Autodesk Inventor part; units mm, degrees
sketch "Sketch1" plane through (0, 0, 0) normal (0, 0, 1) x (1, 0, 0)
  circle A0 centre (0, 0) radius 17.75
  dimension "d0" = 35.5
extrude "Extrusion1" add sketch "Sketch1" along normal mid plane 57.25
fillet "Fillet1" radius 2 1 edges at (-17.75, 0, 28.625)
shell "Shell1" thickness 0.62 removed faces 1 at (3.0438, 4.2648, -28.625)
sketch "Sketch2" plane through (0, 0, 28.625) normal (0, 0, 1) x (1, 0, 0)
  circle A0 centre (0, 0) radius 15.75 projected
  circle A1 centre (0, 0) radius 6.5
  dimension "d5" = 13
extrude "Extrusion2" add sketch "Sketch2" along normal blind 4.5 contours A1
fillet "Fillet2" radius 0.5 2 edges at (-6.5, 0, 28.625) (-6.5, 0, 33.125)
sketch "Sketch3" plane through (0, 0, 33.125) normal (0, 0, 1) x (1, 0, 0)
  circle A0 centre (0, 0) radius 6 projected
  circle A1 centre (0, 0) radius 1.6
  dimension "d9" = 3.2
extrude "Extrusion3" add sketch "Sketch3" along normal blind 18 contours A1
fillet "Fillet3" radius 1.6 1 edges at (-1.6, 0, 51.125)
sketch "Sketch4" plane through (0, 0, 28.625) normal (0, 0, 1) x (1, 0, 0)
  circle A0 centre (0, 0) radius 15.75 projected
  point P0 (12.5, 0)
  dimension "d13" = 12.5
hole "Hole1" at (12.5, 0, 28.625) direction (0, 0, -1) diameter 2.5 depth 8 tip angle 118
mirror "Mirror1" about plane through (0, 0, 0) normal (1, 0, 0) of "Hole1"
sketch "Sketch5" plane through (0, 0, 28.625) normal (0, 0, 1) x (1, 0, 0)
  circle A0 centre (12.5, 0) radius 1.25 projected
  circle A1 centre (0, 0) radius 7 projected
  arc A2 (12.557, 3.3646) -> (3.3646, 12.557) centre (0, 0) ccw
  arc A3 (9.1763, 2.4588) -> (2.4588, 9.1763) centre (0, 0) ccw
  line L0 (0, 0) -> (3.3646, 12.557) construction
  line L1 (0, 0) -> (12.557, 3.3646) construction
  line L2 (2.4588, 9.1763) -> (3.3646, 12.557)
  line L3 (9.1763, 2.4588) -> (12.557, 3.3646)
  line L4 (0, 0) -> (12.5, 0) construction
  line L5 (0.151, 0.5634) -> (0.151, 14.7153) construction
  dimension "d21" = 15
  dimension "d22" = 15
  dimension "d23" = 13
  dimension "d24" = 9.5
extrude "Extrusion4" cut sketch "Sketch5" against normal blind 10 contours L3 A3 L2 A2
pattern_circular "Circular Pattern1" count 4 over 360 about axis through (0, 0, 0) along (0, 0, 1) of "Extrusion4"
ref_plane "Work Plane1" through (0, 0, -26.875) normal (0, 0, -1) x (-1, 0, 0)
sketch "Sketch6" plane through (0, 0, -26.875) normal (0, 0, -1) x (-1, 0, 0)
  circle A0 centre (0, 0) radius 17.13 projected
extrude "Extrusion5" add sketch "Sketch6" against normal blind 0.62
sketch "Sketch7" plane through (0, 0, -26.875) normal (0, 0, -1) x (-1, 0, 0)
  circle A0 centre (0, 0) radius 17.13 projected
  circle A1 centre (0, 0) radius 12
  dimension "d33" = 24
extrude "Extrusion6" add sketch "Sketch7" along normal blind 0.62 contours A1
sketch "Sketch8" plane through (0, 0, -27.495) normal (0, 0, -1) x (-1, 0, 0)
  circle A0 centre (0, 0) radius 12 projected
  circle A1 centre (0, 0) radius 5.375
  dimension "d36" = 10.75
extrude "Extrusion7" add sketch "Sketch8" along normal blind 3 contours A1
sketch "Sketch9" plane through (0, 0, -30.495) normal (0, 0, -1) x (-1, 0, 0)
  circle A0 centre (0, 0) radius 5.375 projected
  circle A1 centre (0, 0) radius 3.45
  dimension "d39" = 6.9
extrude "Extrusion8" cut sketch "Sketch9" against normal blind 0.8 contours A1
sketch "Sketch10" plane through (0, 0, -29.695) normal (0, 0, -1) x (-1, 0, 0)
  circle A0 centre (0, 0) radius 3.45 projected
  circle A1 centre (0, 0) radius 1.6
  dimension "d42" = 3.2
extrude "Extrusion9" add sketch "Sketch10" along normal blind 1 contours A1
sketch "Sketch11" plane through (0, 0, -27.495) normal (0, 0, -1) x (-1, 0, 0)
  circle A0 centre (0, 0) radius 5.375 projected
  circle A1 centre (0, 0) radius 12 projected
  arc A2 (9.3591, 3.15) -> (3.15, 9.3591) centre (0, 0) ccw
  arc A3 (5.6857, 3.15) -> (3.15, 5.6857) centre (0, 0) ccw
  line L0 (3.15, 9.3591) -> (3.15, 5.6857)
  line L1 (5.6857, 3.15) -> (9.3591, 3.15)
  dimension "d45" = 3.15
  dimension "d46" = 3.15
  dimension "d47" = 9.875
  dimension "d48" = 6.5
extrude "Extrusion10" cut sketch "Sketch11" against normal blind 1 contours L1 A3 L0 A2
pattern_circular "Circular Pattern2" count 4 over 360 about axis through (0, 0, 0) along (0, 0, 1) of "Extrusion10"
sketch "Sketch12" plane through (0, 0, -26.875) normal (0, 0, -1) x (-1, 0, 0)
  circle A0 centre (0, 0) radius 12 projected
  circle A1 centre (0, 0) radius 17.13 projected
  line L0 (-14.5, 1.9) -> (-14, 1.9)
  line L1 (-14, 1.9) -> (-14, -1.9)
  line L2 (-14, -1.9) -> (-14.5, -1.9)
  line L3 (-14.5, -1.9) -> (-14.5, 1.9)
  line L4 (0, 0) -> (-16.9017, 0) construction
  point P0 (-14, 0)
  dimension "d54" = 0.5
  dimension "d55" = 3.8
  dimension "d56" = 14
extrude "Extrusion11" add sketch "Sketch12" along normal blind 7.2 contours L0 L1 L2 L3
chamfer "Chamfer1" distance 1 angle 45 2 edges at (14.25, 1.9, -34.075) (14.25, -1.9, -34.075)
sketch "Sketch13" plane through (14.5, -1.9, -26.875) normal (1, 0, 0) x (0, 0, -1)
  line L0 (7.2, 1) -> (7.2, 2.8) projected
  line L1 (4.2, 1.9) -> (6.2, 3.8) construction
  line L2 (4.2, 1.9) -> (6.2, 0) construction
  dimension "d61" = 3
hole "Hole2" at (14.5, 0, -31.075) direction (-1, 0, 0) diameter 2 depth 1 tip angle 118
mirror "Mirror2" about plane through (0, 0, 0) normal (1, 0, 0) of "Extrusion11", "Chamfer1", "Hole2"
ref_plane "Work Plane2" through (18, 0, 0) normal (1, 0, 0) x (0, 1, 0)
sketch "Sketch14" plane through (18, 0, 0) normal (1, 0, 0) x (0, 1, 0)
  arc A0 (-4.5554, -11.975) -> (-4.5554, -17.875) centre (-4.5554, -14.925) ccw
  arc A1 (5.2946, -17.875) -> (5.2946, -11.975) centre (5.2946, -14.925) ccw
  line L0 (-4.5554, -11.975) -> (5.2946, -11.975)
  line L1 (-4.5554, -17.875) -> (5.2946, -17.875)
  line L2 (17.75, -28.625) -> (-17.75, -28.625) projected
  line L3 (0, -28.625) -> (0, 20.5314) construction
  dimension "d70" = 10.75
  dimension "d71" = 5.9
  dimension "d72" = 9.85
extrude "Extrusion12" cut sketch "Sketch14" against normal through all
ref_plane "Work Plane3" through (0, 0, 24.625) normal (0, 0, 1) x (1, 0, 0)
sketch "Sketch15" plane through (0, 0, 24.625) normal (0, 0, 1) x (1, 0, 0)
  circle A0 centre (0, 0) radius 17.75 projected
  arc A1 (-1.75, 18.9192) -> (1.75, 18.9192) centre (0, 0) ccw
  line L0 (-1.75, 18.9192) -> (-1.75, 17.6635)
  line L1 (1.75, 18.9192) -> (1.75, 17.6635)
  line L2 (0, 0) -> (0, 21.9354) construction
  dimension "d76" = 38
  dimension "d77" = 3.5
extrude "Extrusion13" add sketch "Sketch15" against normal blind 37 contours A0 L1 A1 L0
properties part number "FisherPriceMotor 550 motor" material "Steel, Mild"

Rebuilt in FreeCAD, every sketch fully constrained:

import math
import FreeCAD as App
import Part
import Sketcher
Q = App.Units.Quantity


def edges_at(feature, points):
    """Names of the edges that pass closest to the given points."""
    edges = feature.Shape.Edges
    near = lambda p: min(range(len(edges)), key=lambda i: edges[i].distToShape(Part.Vertex(*p))[0])
    return sorted({f"Edge{near(p) + 1}" for p in points})


def faces_at(feature, points):
    """Names of the faces that lie closest to the given points."""
    faces = feature.Shape.Faces
    near = lambda p: min(range(len(faces)), key=lambda i: faces[i].distToShape(Part.Vertex(*p))[0])
    return sorted({f"Face{near(p) + 1}" for p in points})


def add_polygon(sketch, points):
    """Adds a closed chain of lines whose ends are joined by coincident constraints."""
    first, n = sketch.GeometryCount, len(points)
    for a, b in zip(points, points[1:] + points[:1]):
        sketch.addGeometry(Part.LineSegment(App.Vector(*a, 0), App.Vector(*b, 0)), False)
    for i in range(n):
        sketch.addConstraint(Sketcher.Constraint("Coincident", first + i, 2, first + (i + 1) % n, 1))

doc = App.newDocument("Part")
body = doc.addObject("PartDesign::Body", "Body")

# Sketch on XY plane
sketch1 = body.newObject("Sketcher::SketchObject", "Sketch")
sketch1.AttachmentSupport = (doc.getObject("XY_Plane"), [""])
sketch1.MapMode = "FlatFace"
sketch1.addGeometry(Part.Circle(App.Vector(0, 0, 0), App.Vector(0, 0, 1), 18), False)
sketch1.addConstraint(Sketcher.Constraint("Coincident", 0, 3, -1, 1))
sketch1.addConstraint(Sketcher.Constraint("Diameter", 0, 35.5))
pad1 = body.newObject("PartDesign::Pad", "Pad")
pad1.Profile = sketch1
pad1.Length = 57.25
pad1.Midplane = True
doc.recompute()

fillet = body.newObject("PartDesign::Fillet", "Fillet")
fillet.Base = (pad1, edges_at(pad1, [(-17.75, 0, 28.625)]))
fillet.Radius = 2
doc.recompute()

thickness = body.newObject("PartDesign::Thickness", "Thickness")
thickness.Base = (fillet, faces_at(fillet, [(3.044, 4.265, -28.625)]))
thickness.Value = 0.62
thickness.Reversed = True
thickness.Join = "Intersection"

# Sketch on XY plane
sketch2 = body.newObject("Sketcher::SketchObject", "Sketch001")
sketch2.AttachmentSupport = (doc.getObject("XY_Plane"), [""])
sketch2.MapMode = "FlatFace"
sketch2.AttachmentOffset = App.Placement(App.Vector(0, 0, 28.625), App.Rotation())
sketch2.addGeometry(Part.Circle(App.Vector(0, 0, 0), App.Vector(0, 0, 1), 6), False)
sketch2.addConstraint(Sketcher.Constraint("Coincident", 0, 3, -1, 1))
sketch2.addConstraint(Sketcher.Constraint("Diameter", 0, 13.0))
pad2 = body.newObject("PartDesign::Pad", "Pad001")
pad2.Profile = sketch2
pad2.Length = 4.5
doc.recompute()

fillet2 = body.newObject("PartDesign::Fillet", "Fillet001")
fillet2.Base = (pad2, edges_at(pad2, [(-6.5, 0, 28.625), (-6.5, 0, 33.125)]))
fillet2.Radius = 0.5

# Sketch on XY plane
sketch3 = body.newObject("Sketcher::SketchObject", "Sketch002")
sketch3.AttachmentSupport = (doc.getObject("XY_Plane"), [""])
sketch3.MapMode = "FlatFace"
sketch3.AttachmentOffset = App.Placement(App.Vector(0, 0, 33.125), App.Rotation())
sketch3.addGeometry(Part.Circle(App.Vector(0, 0, 0), App.Vector(0, 0, 1), 1.6), False)
sketch3.addConstraint(Sketcher.Constraint("Coincident", 0, 3, -1, 1))
sketch3.addConstraint(Sketcher.Constraint("Diameter", 0, 3.2))
pad3 = body.newObject("PartDesign::Pad", "Pad002")
pad3.Profile = sketch3
pad3.Length = 18
doc.recompute()

fillet3 = body.newObject("PartDesign::Fillet", "Fillet002")
fillet3.Base = (pad3, edges_at(pad3, [(-1.6, 0, 51.125)]))
fillet3.Radius = 1.6

# Sketch on XY plane
sketch4 = body.newObject("Sketcher::SketchObject", "Sketch003")
sketch4.AttachmentSupport = (doc.getObject("XY_Plane"), [""])
sketch4.MapMode = "FlatFace"
sketch4.AttachmentOffset = App.Placement(App.Vector(0, 0, 28.625), App.Rotation())
sketch4.addGeometry(Part.Circle(App.Vector(12.5, 0, 0), App.Vector(0, 0, 1), 1.2), False)
sketch4.addConstraint(Sketcher.Constraint("PointOnObject", 0, 3, -1))
sketch4.addConstraint(Sketcher.Constraint("Diameter", 0, 2.5))
sketch4.addConstraint(Sketcher.Constraint("DistanceX", -1, 1, 0, 3, 12.5))
doc.recompute()
hole = body.newObject("PartDesign::Hole", "Hole")
hole.Profile = sketch4
hole.ThreadType = "None"
hole.Diameter = 2.5
hole.DepthType = "Dimension"
hole.Depth = 8
hole.DrillPoint = "Angled"
hole.DrillPointAngle = 118
doc.recompute()

mirrored = body.newObject("PartDesign::Mirrored", "Mirrored")
mirrored.Originals = [hole]
mirrored.MirrorPlane = (doc.getObject("YZ_Plane"), [""])
body.Tip = mirrored

# Sketch on XY plane
sketch5 = body.newObject("Sketcher::SketchObject", "Sketch004")
sketch5.AttachmentSupport = (doc.getObject("XY_Plane"), [""])
sketch5.MapMode = "FlatFace"
sketch5.AttachmentOffset = App.Placement(App.Vector(0, 0, 28.625), App.Rotation())
sketch5.addGeometry(Part.LineSegment(App.Vector(9.2, 2.5, 0), App.Vector(12.6, 3.4, 0)), False)
sketch5.addGeometry(Part.ArcOfCircle(Part.Circle(App.Vector(0, 0, 0), App.Vector(0, 0, 1), 13), math.radians(15), math.radians(75)), False)
sketch5.addGeometry(Part.LineSegment(App.Vector(3.4, 12.6, 0), App.Vector(2.5, 9.2, 0)), False)
sketch5.addGeometry(Part.ArcOfCircle(Part.Circle(App.Vector(0, 0, 0), App.Vector(0, 0, 1), 9.5), math.radians(15), math.radians(75)), False)
sketch5.addConstraint(Sketcher.Constraint("Coincident", 0, 2, 1, 1))
sketch5.addConstraint(Sketcher.Constraint("Coincident", 1, 2, 2, 1))
sketch5.addConstraint(Sketcher.Constraint("Coincident", 2, 2, 3, 2))
sketch5.addConstraint(Sketcher.Constraint("Coincident", 3, 1, 0, 1))
sketch5.addConstraint(Sketcher.Constraint("Coincident", 1, 3, -1, 1))
sketch5.addConstraint(Sketcher.Constraint("Coincident", 3, 3, -1, 1))
sketch5.addConstraint(Sketcher.Constraint("Radius", 1, 13.0))
sketch5.addConstraint(Sketcher.Constraint("Radius", 3, 9.5))
sketch5.addConstraint(Sketcher.Constraint("Angle", 0, Q("14.999 deg")))
sketch5.addConstraint(Sketcher.Constraint("Angle", 2, Q("-104.999 deg")))
sketch5.addConstraint(Sketcher.Constraint("DistanceX", -1, 1, 0, 2, 12.557))
sketch5.addConstraint(Sketcher.Constraint("DistanceY", -1, 1, 1, 2, 12.557))
pocket1 = body.newObject("PartDesign::Pocket", "Pocket")
pocket1.Profile = sketch5
pocket1.Length = 10
doc.recompute()

polarpattern = body.newObject("PartDesign::PolarPattern", "PolarPattern")
polarpattern.Originals = [pocket1]
polarpattern.Axis = (doc.getObject("Z_Axis"), [""])
polarpattern.Angle = 360
polarpattern.Occurrences = 4
body.Tip = polarpattern

# Sketch on XY plane
sketch6 = body.newObject("Sketcher::SketchObject", "Sketch005")
sketch6.AttachmentSupport = (doc.getObject("XY_Plane"), [""])
sketch6.MapMode = "FlatFace"
sketch6.AttachmentOffset = App.Placement(App.Vector(0, 0, -26.875), App.Rotation())
sketch6.addGeometry(Part.Circle(App.Vector(0, 0, 0), App.Vector(0, 0, 1), 17), False)
sketch6.addConstraint(Sketcher.Constraint("Coincident", 0, 3, -1, 1))
sketch6.addConstraint(Sketcher.Constraint("Diameter", 0, 34.26))
pad4 = body.newObject("PartDesign::Pad", "Pad003")
pad4.Profile = sketch6
pad4.Length = 0.62

# Sketch on XY plane
sketch7 = body.newObject("Sketcher::SketchObject", "Sketch006")
sketch7.AttachmentSupport = (doc.getObject("XY_Plane"), [""])
sketch7.MapMode = "FlatFace"
sketch7.AttachmentOffset = App.Placement(App.Vector(0, 0, -26.875), App.Rotation())
sketch7.addGeometry(Part.Circle(App.Vector(0, 0, 0), App.Vector(0, 0, 1), 12), False)
sketch7.addConstraint(Sketcher.Constraint("Coincident", 0, 3, -1, 1))
sketch7.addConstraint(Sketcher.Constraint("Diameter", 0, 24.0))
pad5 = body.newObject("PartDesign::Pad", "Pad004")
pad5.Profile = sketch7
pad5.Length = 0.62
pad5.Reversed = True

# Sketch on XY plane
sketch8 = body.newObject("Sketcher::SketchObject", "Sketch007")
sketch8.AttachmentSupport = (doc.getObject("XY_Plane"), [""])
sketch8.MapMode = "FlatFace"
sketch8.AttachmentOffset = App.Placement(App.Vector(0, 0, -27.495), App.Rotation())
sketch8.addGeometry(Part.Circle(App.Vector(0, 0, 0), App.Vector(0, 0, 1), 5), False)
sketch8.addConstraint(Sketcher.Constraint("Coincident", 0, 3, -1, 1))
sketch8.addConstraint(Sketcher.Constraint("Diameter", 0, 10.75))
pad6 = body.newObject("PartDesign::Pad", "Pad005")
pad6.Profile = sketch8
pad6.Length = 3
pad6.Reversed = True

# Sketch on XY plane
sketch9 = body.newObject("Sketcher::SketchObject", "Sketch008")
sketch9.AttachmentSupport = (doc.getObject("XY_Plane"), [""])
sketch9.MapMode = "FlatFace"
sketch9.AttachmentOffset = App.Placement(App.Vector(0, 0, -30.495), App.Rotation())
sketch9.addGeometry(Part.Circle(App.Vector(0, 0, 0), App.Vector(0, 0, 1), 3.5), False)
sketch9.addConstraint(Sketcher.Constraint("Coincident", 0, 3, -1, 1))
sketch9.addConstraint(Sketcher.Constraint("Diameter", 0, 6.9))
pocket2 = body.newObject("PartDesign::Pocket", "Pocket001")
pocket2.Profile = sketch9
pocket2.Length = 0.8
pocket2.Reversed = True

# Sketch on XY plane
sketch10 = body.newObject("Sketcher::SketchObject", "Sketch009")
sketch10.AttachmentSupport = (doc.getObject("XY_Plane"), [""])
sketch10.MapMode = "FlatFace"
sketch10.AttachmentOffset = App.Placement(App.Vector(0, 0, -29.695), App.Rotation())
sketch10.addGeometry(Part.Circle(App.Vector(0, 0, 0), App.Vector(0, 0, 1), 1.6), False)
sketch10.addConstraint(Sketcher.Constraint("Coincident", 0, 3, -1, 1))
sketch10.addConstraint(Sketcher.Constraint("Diameter", 0, 3.2))
pad7 = body.newObject("PartDesign::Pad", "Pad006")
pad7.Profile = sketch10
pad7.Length = 1
pad7.Reversed = True

# Sketch on XY plane
sketch11 = body.newObject("Sketcher::SketchObject", "Sketch010")
sketch11.AttachmentSupport = (doc.getObject("XY_Plane"), [""])
sketch11.MapMode = "FlatFace"
sketch11.AttachmentOffset = App.Placement(App.Vector(0, 0, -27.495), App.Rotation())
sketch11.addGeometry(Part.LineSegment(App.Vector(-5.7, 3.1, 0), App.Vector(-9.4, 3.1, 0)), False)
sketch11.addGeometry(Part.ArcOfCircle(Part.Circle(App.Vector(0, 0, 0), App.Vector(0, 0, 1), 9.9), math.radians(109), math.radians(161)), False)
sketch11.addGeometry(Part.LineSegment(App.Vector(-3.1, 9.4, 0), App.Vector(-3.1, 5.7, 0)), False)
sketch11.addGeometry(Part.ArcOfCircle(Part.Circle(App.Vector(0, 0, 0), App.Vector(0, 0, 1), 6.5), math.radians(119), math.radians(151)), False)
sketch11.addConstraint(Sketcher.Constraint("Coincident", 0, 2, 1, 2))
sketch11.addConstraint(Sketcher.Constraint("Coincident", 1, 1, 2, 1))
sketch11.addConstraint(Sketcher.Constraint("Coincident", 2, 2, 3, 1))
sketch11.addConstraint(Sketcher.Constraint("Coincident", 3, 2, 0, 1))
sketch11.addConstraint(Sketcher.Constraint("Horizontal", 0))
sketch11.addConstraint(Sketcher.Constraint("Vertical", 2))
sketch11.addConstraint(Sketcher.Constraint("Coincident", 1, 3, -1, 1))
sketch11.addConstraint(Sketcher.Constraint("Coincident", 3, 3, -1, 1))
sketch11.addConstraint(Sketcher.Constraint("Equal", 0, 2))
sketch11.addConstraint(Sketcher.Constraint("Radius", 3, 6.5))
sketch11.addConstraint(Sketcher.Constraint("Radius", 1, 9.875))
sketch11.addConstraint(Sketcher.Constraint("DistanceY", -1, 1, 0, 2, 3.15))
pocket3 = body.newObject("PartDesign::Pocket", "Pocket002")
pocket3.Profile = sketch11
pocket3.Length = 1
pocket3.Reversed = True
doc.recompute()

polarpattern2 = body.newObject("PartDesign::PolarPattern", "PolarPattern001")
polarpattern2.Originals = [pocket3]
polarpattern2.Axis = (doc.getObject("Z_Axis"), [""])
polarpattern2.Angle = 360
polarpattern2.Occurrences = 4
body.Tip = polarpattern2

# Sketch on XY plane
sketch12 = body.newObject("Sketcher::SketchObject", "Sketch011")
sketch12.AttachmentSupport = (doc.getObject("XY_Plane"), [""])
sketch12.MapMode = "FlatFace"
sketch12.AttachmentOffset = App.Placement(App.Vector(0, 0, -26.875), App.Rotation())
add_polygon(sketch12, [(14, 1.9), (14.5, 1.9), (14.5, -1.9), (14, -1.9)])  # lines 0-3
sketch12.addConstraint(Sketcher.Constraint("Horizontal", 0))
sketch12.addConstraint(Sketcher.Constraint("Vertical", 1))
sketch12.addConstraint(Sketcher.Constraint("Horizontal", 2))
sketch12.addConstraint(Sketcher.Constraint("Vertical", 3))
sketch12.addConstraint(Sketcher.Constraint("DistanceX", 0, 1, 0, 2, 0.5))
sketch12.addConstraint(Sketcher.Constraint("DistanceY", 1, 2, 1, 1, 3.8))
sketch12.addConstraint(Sketcher.Constraint("DistanceX", -1, 1, 2, 2, 14.0))
sketch12.addConstraint(Sketcher.Constraint("DistanceY", -1, 1, 0, 2, 1.9))
pad8 = body.newObject("PartDesign::Pad", "Pad007")
pad8.Profile = sketch12
pad8.Length = 7.2
pad8.Reversed = True
doc.recompute()

chamfer = body.newObject("PartDesign::Chamfer", "Chamfer")
chamfer.Base = (pad8, edges_at(pad8, [(14.25, 1.9, -34.075), (14.25, -1.9, -34.075)]))
chamfer.Size = 1

# Sketch on YZ plane
sketch13 = body.newObject("Sketcher::SketchObject", "Sketch012")
sketch13.AttachmentSupport = (doc.getObject("YZ_Plane"), [""])
sketch13.MapMode = "FlatFace"
sketch13.AttachmentOffset = App.Placement(App.Vector(0, 0, 14.5), App.Rotation())
sketch13.addGeometry(Part.Circle(App.Vector(0, -31.1, 0), App.Vector(0, 0, 1), 1), False)
sketch13.addConstraint(Sketcher.Constraint("PointOnObject", 0, 3, -2))
sketch13.addConstraint(Sketcher.Constraint("Diameter", 0, 2.0))
sketch13.addConstraint(Sketcher.Constraint("DistanceY", 0, 3, -1, 1, 31.075))
doc.recompute()
hole2 = body.newObject("PartDesign::Hole", "Hole001")
hole2.Profile = sketch13
hole2.ThreadType = "None"
hole2.Diameter = 2
hole2.DepthType = "Dimension"
hole2.Depth = 1
hole2.DrillPoint = "Angled"
hole2.DrillPointAngle = 118
doc.recompute()

mirrored2 = body.newObject("PartDesign::Mirrored", "Mirrored001")
mirrored2.Originals = [pad8, chamfer, hole2]
mirrored2.MirrorPlane = (doc.getObject("YZ_Plane"), [""])
body.Tip = mirrored2

# Sketch on YZ plane
sketch14 = body.newObject("Sketcher::SketchObject", "Sketch013")
sketch14.AttachmentSupport = (doc.getObject("YZ_Plane"), [""])
sketch14.MapMode = "FlatFace"
sketch14.AttachmentOffset = App.Placement(App.Vector(0, 0, 18), App.Rotation())
sketch14.addGeometry(Part.LineSegment(App.Vector(5.3, -12, 0), App.Vector(-4.6, -12, 0)), False)
sketch14.addGeometry(Part.ArcOfCircle(Part.Circle(App.Vector(-4.6, -14.9, 0), App.Vector(0, 0, 1), 3), math.radians(90), math.radians(270)), False)
sketch14.addGeometry(Part.LineSegment(App.Vector(-4.6, -17.9, 0), App.Vector(5.3, -17.9, 0)), False)
sketch14.addGeometry(Part.ArcOfCircle(Part.Circle(App.Vector(5.3, -14.9, 0), App.Vector(0, 0, 1), 2.9), math.radians(-90), math.radians(90)), False)
sketch14.addConstraint(Sketcher.Constraint("Tangent", 0, 2, 1, 1))
sketch14.addConstraint(Sketcher.Constraint("Tangent", 1, 2, 2, 1))
sketch14.addConstraint(Sketcher.Constraint("Tangent", 2, 2, 3, 1))
sketch14.addConstraint(Sketcher.Constraint("Tangent", 3, 2, 0, 1))
sketch14.addConstraint(Sketcher.Constraint("Horizontal", 0))
sketch14.addConstraint(Sketcher.Constraint("Horizontal", 2))
sketch14.addConstraint(Sketcher.Constraint("Radius", 1, 2.95))
sketch14.addConstraint(Sketcher.Constraint("DistanceX", 0, 2, 0, 1, 9.85))
sketch14.addConstraint(Sketcher.Constraint("DistanceY", 1, 3, -1, 1, 14.925))
sketch14.addConstraint(Sketcher.Constraint("DistanceX", 1, 3, -1, 1, 4.5554))
pocket4 = body.newObject("PartDesign::Pocket", "Pocket003")
pocket4.Profile = sketch14
pocket4.Type = "ThroughAll"

# Sketch on XY plane
sketch15 = body.newObject("Sketcher::SketchObject", "Sketch014")
sketch15.AttachmentSupport = (doc.getObject("XY_Plane"), [""])
sketch15.MapMode = "FlatFace"
sketch15.AttachmentOffset = App.Placement(App.Vector(0, 0, 24.625), App.Rotation())
sketch15.addGeometry(Part.ArcOfCircle(Part.Circle(App.Vector(0, 0, 0), App.Vector(0, 0, 1), 17.8), math.radians(96), math.radians(444)), False)
sketch15.addGeometry(Part.LineSegment(App.Vector(-1.8, 17.7, 0), App.Vector(-1.8, 18.9, 0)), False)
sketch15.addGeometry(Part.ArcOfCircle(Part.Circle(App.Vector(0, 0, 0), App.Vector(0, 0, 1), 19), math.radians(95), math.radians(445)), False)
sketch15.addGeometry(Part.LineSegment(App.Vector(1.8, 18.9, 0), App.Vector(1.8, 17.7, 0)), False)
sketch15.addConstraint(Sketcher.Constraint("Coincident", 0, 1, 1, 1))
sketch15.addConstraint(Sketcher.Constraint("Coincident", 1, 2, 2, 1))
sketch15.addConstraint(Sketcher.Constraint("Coincident", 2, 2, 3, 1))
sketch15.addConstraint(Sketcher.Constraint("Coincident", 3, 2, 0, 2))
sketch15.addConstraint(Sketcher.Constraint("Vertical", 1))
sketch15.addConstraint(Sketcher.Constraint("Vertical", 3))
sketch15.addConstraint(Sketcher.Constraint("Coincident", 0, 3, -1, 1))
sketch15.addConstraint(Sketcher.Constraint("Coincident", 2, 3, -1, 1))
sketch15.addConstraint(Sketcher.Constraint("Horizontal", 1, 2, 2, 2))
sketch15.addConstraint(Sketcher.Constraint("Radius", 2, 19.0))
sketch15.addConstraint(Sketcher.Constraint("DistanceX", 1, 2, 2, 2, 3.5))
sketch15.addConstraint(Sketcher.Constraint("Radius", 0, 17.75))
pad9 = body.newObject("PartDesign::Pad", "Pad008")
pad9.Profile = sketch15
pad9.Length = 37
pad9.Reversed = True

doc.recompute()
